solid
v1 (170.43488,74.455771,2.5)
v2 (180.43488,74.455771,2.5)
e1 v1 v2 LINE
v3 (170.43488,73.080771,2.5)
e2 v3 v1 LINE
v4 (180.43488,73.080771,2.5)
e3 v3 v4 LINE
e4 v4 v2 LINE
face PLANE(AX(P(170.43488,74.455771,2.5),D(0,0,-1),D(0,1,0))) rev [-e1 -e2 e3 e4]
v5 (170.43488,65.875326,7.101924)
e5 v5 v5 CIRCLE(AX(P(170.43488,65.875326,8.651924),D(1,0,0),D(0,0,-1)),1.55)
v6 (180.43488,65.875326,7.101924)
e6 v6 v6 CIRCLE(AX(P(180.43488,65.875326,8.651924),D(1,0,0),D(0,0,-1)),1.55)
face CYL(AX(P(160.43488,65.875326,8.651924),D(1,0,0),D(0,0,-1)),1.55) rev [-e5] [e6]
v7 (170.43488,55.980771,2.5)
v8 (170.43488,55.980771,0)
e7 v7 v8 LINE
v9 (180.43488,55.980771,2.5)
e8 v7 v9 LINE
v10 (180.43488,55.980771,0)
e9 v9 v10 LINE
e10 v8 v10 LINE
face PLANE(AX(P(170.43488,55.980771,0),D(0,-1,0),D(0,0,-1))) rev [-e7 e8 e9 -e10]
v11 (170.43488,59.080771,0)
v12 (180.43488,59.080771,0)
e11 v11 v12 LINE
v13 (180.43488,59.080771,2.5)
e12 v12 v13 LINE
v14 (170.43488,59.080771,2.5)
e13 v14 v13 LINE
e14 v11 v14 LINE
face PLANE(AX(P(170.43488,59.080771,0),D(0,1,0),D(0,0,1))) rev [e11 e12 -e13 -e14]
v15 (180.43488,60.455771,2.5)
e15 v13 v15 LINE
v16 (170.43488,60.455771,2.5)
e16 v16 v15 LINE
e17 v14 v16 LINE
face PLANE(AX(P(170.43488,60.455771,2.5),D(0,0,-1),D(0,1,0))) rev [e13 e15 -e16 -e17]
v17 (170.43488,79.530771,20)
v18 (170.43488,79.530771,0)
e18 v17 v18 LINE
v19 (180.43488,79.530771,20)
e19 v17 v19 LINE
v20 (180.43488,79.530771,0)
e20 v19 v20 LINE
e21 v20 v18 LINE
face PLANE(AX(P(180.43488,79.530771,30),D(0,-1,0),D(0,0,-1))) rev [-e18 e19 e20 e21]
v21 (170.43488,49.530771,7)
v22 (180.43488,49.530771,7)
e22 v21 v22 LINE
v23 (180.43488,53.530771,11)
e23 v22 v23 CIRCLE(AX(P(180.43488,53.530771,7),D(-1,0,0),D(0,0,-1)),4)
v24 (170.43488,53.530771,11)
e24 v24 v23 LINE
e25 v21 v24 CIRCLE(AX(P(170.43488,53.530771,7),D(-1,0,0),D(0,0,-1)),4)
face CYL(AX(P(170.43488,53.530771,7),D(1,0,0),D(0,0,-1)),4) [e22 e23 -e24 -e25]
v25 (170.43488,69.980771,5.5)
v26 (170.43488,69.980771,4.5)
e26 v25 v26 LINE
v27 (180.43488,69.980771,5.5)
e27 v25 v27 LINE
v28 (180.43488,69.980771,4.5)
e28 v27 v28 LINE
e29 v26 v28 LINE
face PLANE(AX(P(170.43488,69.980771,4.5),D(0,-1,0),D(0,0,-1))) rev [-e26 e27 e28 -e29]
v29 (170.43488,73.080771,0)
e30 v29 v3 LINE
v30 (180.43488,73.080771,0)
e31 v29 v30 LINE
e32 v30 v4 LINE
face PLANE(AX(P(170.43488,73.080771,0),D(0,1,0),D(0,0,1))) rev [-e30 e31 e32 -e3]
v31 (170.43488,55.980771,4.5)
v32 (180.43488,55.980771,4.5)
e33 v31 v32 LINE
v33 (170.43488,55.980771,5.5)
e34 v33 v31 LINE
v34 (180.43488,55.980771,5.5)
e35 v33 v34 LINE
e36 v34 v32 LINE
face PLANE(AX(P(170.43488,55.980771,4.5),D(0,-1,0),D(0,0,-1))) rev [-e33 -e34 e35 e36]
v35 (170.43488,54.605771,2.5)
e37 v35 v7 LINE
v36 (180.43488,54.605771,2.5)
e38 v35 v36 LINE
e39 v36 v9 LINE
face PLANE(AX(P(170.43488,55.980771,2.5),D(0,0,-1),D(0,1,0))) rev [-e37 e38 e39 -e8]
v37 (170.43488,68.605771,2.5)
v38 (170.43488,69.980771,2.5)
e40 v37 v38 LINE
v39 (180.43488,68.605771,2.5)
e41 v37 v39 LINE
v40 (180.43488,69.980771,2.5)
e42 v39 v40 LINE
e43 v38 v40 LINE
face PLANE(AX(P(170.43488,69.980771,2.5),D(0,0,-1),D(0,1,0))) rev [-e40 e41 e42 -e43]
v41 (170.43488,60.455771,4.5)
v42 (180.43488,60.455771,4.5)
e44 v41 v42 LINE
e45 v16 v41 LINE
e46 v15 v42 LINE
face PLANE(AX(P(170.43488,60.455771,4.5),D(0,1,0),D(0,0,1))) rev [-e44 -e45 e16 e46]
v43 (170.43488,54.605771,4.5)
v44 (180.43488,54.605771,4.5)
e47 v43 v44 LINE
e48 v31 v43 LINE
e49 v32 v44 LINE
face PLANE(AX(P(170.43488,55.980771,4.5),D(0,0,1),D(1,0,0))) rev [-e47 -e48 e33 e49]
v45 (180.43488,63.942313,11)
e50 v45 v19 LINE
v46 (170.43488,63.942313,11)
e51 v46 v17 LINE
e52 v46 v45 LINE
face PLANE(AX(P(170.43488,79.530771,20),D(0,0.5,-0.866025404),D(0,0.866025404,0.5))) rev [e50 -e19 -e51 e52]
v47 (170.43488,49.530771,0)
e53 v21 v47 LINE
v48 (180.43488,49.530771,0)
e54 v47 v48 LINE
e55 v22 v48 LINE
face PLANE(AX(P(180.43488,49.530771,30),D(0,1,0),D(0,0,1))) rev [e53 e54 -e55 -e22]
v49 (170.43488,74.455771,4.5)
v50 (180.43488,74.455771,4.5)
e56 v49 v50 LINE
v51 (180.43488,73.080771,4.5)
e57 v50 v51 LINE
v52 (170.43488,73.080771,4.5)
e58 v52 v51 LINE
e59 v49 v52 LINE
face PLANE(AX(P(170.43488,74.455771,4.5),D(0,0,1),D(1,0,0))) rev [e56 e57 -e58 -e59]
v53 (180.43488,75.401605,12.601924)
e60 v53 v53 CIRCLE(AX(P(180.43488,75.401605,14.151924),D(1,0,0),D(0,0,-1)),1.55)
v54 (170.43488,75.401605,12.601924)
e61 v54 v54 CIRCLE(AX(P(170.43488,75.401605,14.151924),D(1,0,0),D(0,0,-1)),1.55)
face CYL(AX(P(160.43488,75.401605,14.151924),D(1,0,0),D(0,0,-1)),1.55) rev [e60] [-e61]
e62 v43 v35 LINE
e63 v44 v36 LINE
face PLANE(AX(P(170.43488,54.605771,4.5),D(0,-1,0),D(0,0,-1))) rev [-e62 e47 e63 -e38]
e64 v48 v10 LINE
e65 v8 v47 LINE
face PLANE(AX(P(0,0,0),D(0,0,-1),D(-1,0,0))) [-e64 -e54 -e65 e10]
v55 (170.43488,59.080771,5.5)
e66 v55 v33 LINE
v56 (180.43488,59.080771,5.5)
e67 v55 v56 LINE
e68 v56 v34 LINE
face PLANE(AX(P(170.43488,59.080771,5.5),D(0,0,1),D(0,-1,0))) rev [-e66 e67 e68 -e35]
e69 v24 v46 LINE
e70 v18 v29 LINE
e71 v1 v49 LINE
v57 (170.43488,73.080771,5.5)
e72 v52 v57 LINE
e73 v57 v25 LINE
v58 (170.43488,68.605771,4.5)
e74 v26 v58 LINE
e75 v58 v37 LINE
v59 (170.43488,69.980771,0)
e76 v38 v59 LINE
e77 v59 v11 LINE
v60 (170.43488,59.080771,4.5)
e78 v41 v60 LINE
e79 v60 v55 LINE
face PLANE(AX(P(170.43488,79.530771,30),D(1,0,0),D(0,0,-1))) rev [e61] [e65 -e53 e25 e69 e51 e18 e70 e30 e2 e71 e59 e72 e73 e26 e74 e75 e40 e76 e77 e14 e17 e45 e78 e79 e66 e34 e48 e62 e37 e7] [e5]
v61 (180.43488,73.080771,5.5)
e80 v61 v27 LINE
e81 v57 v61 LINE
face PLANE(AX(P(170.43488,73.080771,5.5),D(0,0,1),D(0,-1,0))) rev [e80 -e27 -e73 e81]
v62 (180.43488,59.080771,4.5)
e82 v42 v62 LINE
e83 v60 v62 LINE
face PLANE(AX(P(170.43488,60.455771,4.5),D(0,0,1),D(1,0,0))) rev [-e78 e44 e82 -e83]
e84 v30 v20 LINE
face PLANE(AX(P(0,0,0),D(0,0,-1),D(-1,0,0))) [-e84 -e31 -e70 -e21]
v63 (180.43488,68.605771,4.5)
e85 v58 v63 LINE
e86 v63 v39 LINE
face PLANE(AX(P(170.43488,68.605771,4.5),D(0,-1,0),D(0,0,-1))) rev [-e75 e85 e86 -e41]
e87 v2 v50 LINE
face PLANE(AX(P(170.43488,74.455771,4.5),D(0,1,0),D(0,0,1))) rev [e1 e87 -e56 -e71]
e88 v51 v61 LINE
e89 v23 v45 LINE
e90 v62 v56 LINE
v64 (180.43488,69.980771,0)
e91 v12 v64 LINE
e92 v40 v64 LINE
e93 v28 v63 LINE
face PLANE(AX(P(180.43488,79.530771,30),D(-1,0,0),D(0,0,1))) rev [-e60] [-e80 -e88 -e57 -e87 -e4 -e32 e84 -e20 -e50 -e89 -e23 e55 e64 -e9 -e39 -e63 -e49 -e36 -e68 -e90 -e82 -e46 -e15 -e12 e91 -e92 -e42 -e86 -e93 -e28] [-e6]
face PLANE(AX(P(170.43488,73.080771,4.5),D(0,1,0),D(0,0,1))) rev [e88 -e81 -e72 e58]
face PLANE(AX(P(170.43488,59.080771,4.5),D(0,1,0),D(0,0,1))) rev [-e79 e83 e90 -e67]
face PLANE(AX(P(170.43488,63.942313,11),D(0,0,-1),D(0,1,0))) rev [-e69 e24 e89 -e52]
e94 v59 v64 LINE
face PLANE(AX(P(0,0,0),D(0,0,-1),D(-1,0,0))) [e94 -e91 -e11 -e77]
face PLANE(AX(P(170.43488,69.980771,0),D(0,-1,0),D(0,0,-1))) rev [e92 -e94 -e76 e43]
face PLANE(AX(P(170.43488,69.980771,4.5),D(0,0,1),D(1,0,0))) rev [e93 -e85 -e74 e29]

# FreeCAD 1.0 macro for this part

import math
import FreeCAD as App
import Part
import Sketcher
from FreeCAD import Vector
Q = App.Units.Quantity

doc = App.newDocument("Part")
body = doc.addObject("PartDesign::Body", "Body")

sketch1 = doc.addObject("Sketcher::SketchObject", "Sketch")
body.addObject(sketch1)
sketch1.AttachmentSupport = (doc.XY_Plane, [""])
sketch1.MapMode = "FlatFace"
sketch1.addGeometry([
    Part.LineSegment(Vector(170, 80, 0), Vector(170, 50, 0)),
    Part.LineSegment(Vector(170, 50, 0), Vector(180, 50, 0)),
    Part.LineSegment(Vector(180, 50, 0), Vector(180, 80, 0)),
    Part.LineSegment(Vector(180, 80, 0), Vector(170, 80, 0)),
], False)
sketch1.addConstraint([
    Sketcher.Constraint("Coincident", 0, 2, 1, 1),
    Sketcher.Constraint("Coincident", 1, 2, 2, 1),
    Sketcher.Constraint("Coincident", 2, 2, 3, 1),
    Sketcher.Constraint("Coincident", 3, 2, 0, 1),
    Sketcher.Constraint("Vertical", 0),
    Sketcher.Constraint("Horizontal", 1),
    Sketcher.Constraint("Vertical", 2),
    Sketcher.Constraint("Horizontal", 3),
    Sketcher.Constraint("DistanceX", 1, 1, 1, 2, 10.0),
    Sketcher.Constraint("DistanceY", 0, 2, 0, 1, 30.0),
    Sketcher.Constraint("DistanceX", -1, 1, 0, 2, 170.43488),
    Sketcher.Constraint("DistanceY", -1, 1, 0, 2, 49.530771),
])
pad1 = doc.addObject("PartDesign::Pad", "Pad")
body.addObject(pad1)
pad1.Profile = sketch1
pad1.Length = 30

sketch2 = doc.addObject("Sketcher::SketchObject", "Sketch001")
body.addObject(sketch2)
sketch2.AttachmentSupport = (doc.YZ_Plane, [""])
sketch2.MapMode = "FlatFace"
sketch2.AttachmentOffset = App.Placement(Vector(0, 0, 180.43488), App.Rotation())
sketch2.addGeometry([
    Part.LineSegment(Vector(70, 0, 0), Vector(73.1, 0, 0)),
    Part.LineSegment(Vector(73.1, 0, 0), Vector(73.1, 2.5, 0)),
    Part.LineSegment(Vector(73.1, 2.5, 0), Vector(74.5, 2.5, 0)),
    Part.LineSegment(Vector(74.5, 2.5, 0), Vector(74.5, 4.5, 0)),
    Part.LineSegment(Vector(74.5, 4.5, 0), Vector(73.1, 4.5, 0)),
    Part.LineSegment(Vector(73.1, 4.5, 0), Vector(73.1, 5.5, 0)),
    Part.LineSegment(Vector(73.1, 5.5, 0), Vector(70, 5.5, 0)),
    Part.LineSegment(Vector(70, 5.5, 0), Vector(70, 4.5, 0)),
    Part.LineSegment(Vector(70, 4.5, 0), Vector(68.6, 4.5, 0)),
    Part.LineSegment(Vector(68.6, 4.5, 0), Vector(68.6, 2.5, 0)),
    Part.LineSegment(Vector(68.6, 2.5, 0), Vector(70, 2.5, 0)),
    Part.LineSegment(Vector(70, 2.5, 0), Vector(70, 0, 0)),
], False)
sketch2.addConstraint([
    Sketcher.Constraint("Coincident", 0, 2, 1, 1),
    Sketcher.Constraint("Coincident", 1, 2, 2, 1),
    Sketcher.Constraint("Coincident", 2, 2, 3, 1),
    Sketcher.Constraint("Coincident", 3, 2, 4, 1),
    Sketcher.Constraint("Coincident", 4, 2, 5, 1),
    Sketcher.Constraint("Coincident", 5, 2, 6, 1),
    Sketcher.Constraint("Coincident", 6, 2, 7, 1),
    Sketcher.Constraint("Coincident", 7, 2, 8, 1),
    Sketcher.Constraint("Coincident", 8, 2, 9, 1),
    Sketcher.Constraint("Coincident", 9, 2, 10, 1),
    Sketcher.Constraint("Coincident", 10, 2, 11, 1),
    Sketcher.Constraint("Coincident", 11, 2, 0, 1),
    Sketcher.Constraint("Horizontal", 0),
    Sketcher.Constraint("Vertical", 1),
    Sketcher.Constraint("Horizontal", 2),
    Sketcher.Constraint("Vertical", 3),
    Sketcher.Constraint("Horizontal", 4),
    Sketcher.Constraint("Vertical", 5),
    Sketcher.Constraint("Horizontal", 6),
    Sketcher.Constraint("Vertical", 7),
    Sketcher.Constraint("Horizontal", 8),
    Sketcher.Constraint("Vertical", 9),
    Sketcher.Constraint("Horizontal", 10),
    Sketcher.Constraint("Vertical", 11),
    Sketcher.Constraint("PointOnObject", 0, 2, -1),
    Sketcher.Constraint("Horizontal", 4, 2, 7, 2),
    Sketcher.Constraint("Horizontal", 2, 2, 9, 2),
    Sketcher.Constraint("Vertical", 1, 2, 4, 2),
    Sketcher.Constraint("Vertical", 7, 2, 10, 2),
    Sketcher.Constraint("Equal", 4, 8),
    Sketcher.Constraint("DistanceY", 3, 1, 3, 2, 2.0),
    Sketcher.Constraint("DistanceY", 5, 1, 5, 2, 1.0),
    Sketcher.Constraint("DistanceX", 0, 1, 0, 2, 3.1),
    Sketcher.Constraint("DistanceY", 1, 1, 1, 2, 2.5),
    Sketcher.Constraint("DistanceX", 2, 1, 2, 2, 1.375),
    Sketcher.Constraint("DistanceX", -1, 1, 0, 2, 73.080771),
])
pocket1 = doc.addObject("PartDesign::Pocket", "Pocket")
body.addObject(pocket1)
pocket1.Profile = sketch2
pocket1.Length = 10
doc.recompute()

linearpattern = doc.addObject("PartDesign::LinearPattern", "LinearPattern")
body.addObject(linearpattern)
linearpattern.Originals = [pocket1]
linearpattern.Direction = (doc.Y_Axis, [""])
linearpattern.Mode = "offset"
linearpattern.Offset = 14
linearpattern.Occurrences = 2
linearpattern.Reversed = True
body.Tip = linearpattern

sketch3 = doc.addObject("Sketcher::SketchObject", "Sketch002")
body.addObject(sketch3)
sketch3.AttachmentSupport = (doc.YZ_Plane, [""])
sketch3.MapMode = "FlatFace"
sketch3.AttachmentOffset = App.Placement(Vector(0, 0, 180.43488), App.Rotation())
sketch3.addGeometry([
    Part.LineSegment(Vector(64, 11, 0), Vector(80, 20, 0)),
    Part.LineSegment(Vector(80, 20, 0), Vector(80, 30, 0)),
    Part.LineSegment(Vector(80, 30, 0), Vector(50, 30, 0)),
    Part.LineSegment(Vector(50, 30, 0), Vector(50, 11, 0)),
    Part.LineSegment(Vector(50, 11, 0), Vector(64, 11, 0)),
], False)
sketch3.addConstraint([
    Sketcher.Constraint("Coincident", 0, 2, 1, 1),
    Sketcher.Constraint("Coincident", 1, 2, 2, 1),
    Sketcher.Constraint("Coincident", 2, 2, 3, 1),
    Sketcher.Constraint("Coincident", 3, 2, 4, 1),
    Sketcher.Constraint("Coincident", 4, 2, 0, 1),
    Sketcher.Constraint("Vertical", 1),
    Sketcher.Constraint("Horizontal", 2),
    Sketcher.Constraint("Vertical", 3),
    Sketcher.Constraint("Horizontal", 4),
    Sketcher.Constraint("DistanceX", 2, 2, 2, 1, 30.0),
    Sketcher.Constraint("DistanceY", 1, 1, 1, 2, 10.0),
    Sketcher.Constraint("DistanceY", 3, 2, 3, 1, 19.0),
    Sketcher.Constraint("Angle", 0, Q("30 deg")),
    Sketcher.Constraint("DistanceY", -1, 1, 0, 2, 20.0),
    Sketcher.Constraint("DistanceX", -1, 1, 0, 2, 79.530771),
])
pocket2 = doc.addObject("PartDesign::Pocket", "Pocket001")
body.addObject(pocket2)
pocket2.Profile = sketch3
pocket2.Length = 10

sketch4 = doc.addObject("Sketcher::SketchObject", "Sketch003")
body.addObject(sketch4)
sketch4.AttachmentSupport = (doc.YZ_Plane, [""])
sketch4.MapMode = "FlatFace"
sketch4.AttachmentOffset = App.Placement(Vector(0, 0, 180.43488), App.Rotation())
sketch4.addGeometry([
    Part.Circle(Vector(65.9, 8.7, 0), Vector(0, 0, 1), 1.6),
    Part.Circle(Vector(75.4, 14.2, 0), Vector(0, 0, 1), 1.6),
], False)
sketch4.addConstraint([
    Sketcher.Constraint("Equal", 0, 1),
    Sketcher.Constraint("Diameter", 0, 3.1),
    Sketcher.Constraint("DistanceY", 0, 3, 1, 3, 5.5),
    Sketcher.Constraint("DistanceX", 0, 3, 1, 3, 9.526279),
    Sketcher.Constraint("DistanceX", -1, 1, 0, 3, 65.875326),
    Sketcher.Constraint("DistanceY", -1, 1, 0, 3, 8.651924),
])
pocket3 = doc.addObject("PartDesign::Pocket", "Pocket002")
body.addObject(pocket3)
pocket3.Profile = sketch4
pocket3.Length = 20

sketch5 = doc.addObject("Sketcher::SketchObject", "Sketch004")
body.addObject(sketch5)
sketch5.AttachmentSupport = (doc.YZ_Plane, [""])
sketch5.MapMode = "FlatFace"
sketch5.AttachmentOffset = App.Placement(Vector(0, 0, 180.43488), App.Rotation())
sketch5.addGeometry([
    Part.LineSegment(Vector(49.5, 11, 0), Vector(49.5, 7, 0)),
    Part.ArcOfCircle(Part.Circle(Vector(53.5, 7, 0), Vector(0, 0, 1), 4), math.radians(90), math.radians(180)),
    Part.LineSegment(Vector(53.5, 11, 0), Vector(49.5, 11, 0)),
], False)
sketch5.addConstraint([
    Sketcher.Constraint("Tangent", 0, 2, 1, 2),
    Sketcher.Constraint("Tangent", 1, 1, 2, 1),
    Sketcher.Constraint("Coincident", 2, 2, 0, 1),
    Sketcher.Constraint("Vertical", 0),
    Sketcher.Constraint("Horizontal", 2),
    Sketcher.Constraint("Radius", 1, 4.0),
    Sketcher.Constraint("DistanceY", -1, 1, 1, 3, 7.0),
    Sketcher.Constraint("DistanceX", -1, 1, 1, 3, 53.530771),
])
pocket4 = doc.addObject("PartDesign::Pocket", "Pocket003")
body.addObject(pocket4)
pocket4.Profile = sketch5
pocket4.Length = 10

doc.recompute()
